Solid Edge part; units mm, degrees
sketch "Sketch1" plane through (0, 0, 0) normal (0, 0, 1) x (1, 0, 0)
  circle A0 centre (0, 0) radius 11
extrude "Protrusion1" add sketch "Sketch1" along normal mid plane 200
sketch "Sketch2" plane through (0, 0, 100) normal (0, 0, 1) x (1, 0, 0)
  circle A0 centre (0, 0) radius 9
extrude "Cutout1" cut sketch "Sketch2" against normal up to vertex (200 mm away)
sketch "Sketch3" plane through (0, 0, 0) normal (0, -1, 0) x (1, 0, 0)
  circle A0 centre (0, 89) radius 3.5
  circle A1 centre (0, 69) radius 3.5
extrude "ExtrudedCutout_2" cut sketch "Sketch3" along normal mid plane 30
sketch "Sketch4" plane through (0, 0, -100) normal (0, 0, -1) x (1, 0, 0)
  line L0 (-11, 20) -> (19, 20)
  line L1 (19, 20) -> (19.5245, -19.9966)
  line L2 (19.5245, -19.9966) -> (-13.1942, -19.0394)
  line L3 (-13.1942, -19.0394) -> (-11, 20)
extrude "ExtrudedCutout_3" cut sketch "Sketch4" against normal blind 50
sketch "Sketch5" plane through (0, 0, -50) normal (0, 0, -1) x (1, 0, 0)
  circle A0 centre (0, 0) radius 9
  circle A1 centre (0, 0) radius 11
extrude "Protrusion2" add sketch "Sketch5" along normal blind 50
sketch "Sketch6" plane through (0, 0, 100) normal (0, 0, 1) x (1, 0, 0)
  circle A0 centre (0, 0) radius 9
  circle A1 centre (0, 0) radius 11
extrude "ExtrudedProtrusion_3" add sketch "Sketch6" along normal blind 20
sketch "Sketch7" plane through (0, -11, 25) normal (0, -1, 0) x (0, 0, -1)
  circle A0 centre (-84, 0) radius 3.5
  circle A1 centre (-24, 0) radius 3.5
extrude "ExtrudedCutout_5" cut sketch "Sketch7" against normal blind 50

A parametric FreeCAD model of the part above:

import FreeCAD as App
import Part
import Sketcher
from FreeCAD import Vector

doc = App.newDocument("Part")
params = doc.addObject("Spreadsheet::Sheet", "Params")
for row, (alias, value) in enumerate([
    ("sketch1_diameter", "22 mm"),
    ("pad1_length", "200 mm"),
    ("sketch2_diameter", "18 mm"),
    ("pocket1_length", "200 mm"),
    ("sketch3_diameter", "7 mm"),
    ("pocket2_length", "30 mm"),
    ("sketch4_width", "30 mm"),
    ("sketch4_length", "40 mm"),
    ("pocket3_length", "50 mm"),
    ("sketch5_diameter", "22 mm"),
    ("sketch5_diameter2", "18 mm"),
    ("pad2_length", "50 mm"),
    ("sketch6_diameter", "22 mm"),
    ("sketch6_diameter2", "18 mm"),
    ("pad3_length", "20 mm"),
    ("sketch7_diameter", "7 mm"),
    ("pocket4_length", "50 mm"),
], start=1):
    params.set(f"A{row}", alias)
    params.set(f"B{row}", "=" + value)
    params.setAlias(f"B{row}", alias)

body = doc.addObject("PartDesign::Body", "Body")

# Sketch on XY plane
sketch1 = body.newObject("Sketcher::SketchObject", "Sketch")
sketch1.AttachmentSupport = (doc.getObject("XY_Plane"), [""])
sketch1.MapMode = "FlatFace"
sketch1.addGeometry(Part.Circle(Vector(0, 0, 0), Vector(0, 0, 1), 11), False)
sketch1.addConstraint(Sketcher.Constraint("Coincident", 0, 3, -1, 1))
sketch1.addConstraint(Sketcher.Constraint("Diameter", 0, 22.0))
sketch1.setExpression("Constraints[1]", "Params.sketch1_diameter")
pad1 = body.newObject("PartDesign::Pad", "Pad")
pad1.Profile = sketch1
pad1.setExpression("Length", "Params.pad1_length")
pad1.Midplane = True

# Sketch on XY plane
sketch2 = body.newObject("Sketcher::SketchObject", "Sketch001")
sketch2.AttachmentSupport = (doc.getObject("XY_Plane"), [""])
sketch2.MapMode = "FlatFace"
sketch2.AttachmentOffset = App.Placement(Vector(0, 0, 100), App.Rotation())
sketch2.addGeometry(Part.Circle(Vector(0, 0, 0), Vector(0, 0, 1), 9), False)
sketch2.addConstraint(Sketcher.Constraint("Coincident", 0, 3, -1, 1))
sketch2.addConstraint(Sketcher.Constraint("Diameter", 0, 18.0))
sketch2.setExpression("Constraints[1]", "Params.sketch2_diameter")
pocket1 = body.newObject("PartDesign::Pocket", "Pocket")
pocket1.Profile = sketch2
pocket1.setExpression("Length", "Params.pocket1_length")

# Sketch on XZ plane
sketch3 = body.newObject("Sketcher::SketchObject", "Sketch002")
sketch3.AttachmentSupport = (doc.getObject("XZ_Plane"), [""])
sketch3.MapMode = "FlatFace"
sketch3.addGeometry(Part.Circle(Vector(0, 89, 0), Vector(0, 0, 1), 3.5), False)
sketch3.addGeometry(Part.Circle(Vector(0, 69, 0), Vector(0, 0, 1), 3.5), False)
sketch3.addConstraint(Sketcher.Constraint("Equal", 0, 1))
sketch3.addConstraint(Sketcher.Constraint("PointOnObject", 0, 3, -2))
sketch3.addConstraint(Sketcher.Constraint("PointOnObject", 1, 3, -2))
sketch3.addConstraint(Sketcher.Constraint("Diameter", 0, 7.0))
sketch3.addConstraint(Sketcher.Constraint("DistanceY", -1, 1, 0, 3, 89.0))
sketch3.addConstraint(Sketcher.Constraint("DistanceY", -1, 1, 1, 3, 69.0))
sketch3.setExpression("Constraints[3]", "Params.sketch3_diameter")
pocket2 = body.newObject("PartDesign::Pocket", "Pocket001")
pocket2.Profile = sketch3
pocket2.setExpression("Length", "Params.pocket2_length")
pocket2.Midplane = True

# Sketch on XY plane
sketch4 = body.newObject("Sketcher::SketchObject", "Sketch003")
sketch4.AttachmentSupport = (doc.getObject("XY_Plane"), [""])
sketch4.MapMode = "FlatFace"
sketch4.AttachmentOffset = App.Placement(Vector(0, 0, -100), App.Rotation())
sketch4.addGeometry(Part.LineSegment(Vector(19, -20, 0), Vector(-11, -20, 0)), False)
sketch4.addGeometry(Part.LineSegment(Vector(-11, -20, 0), Vector(-13, 19, 0)), False)
sketch4.addGeometry(Part.LineSegment(Vector(-13, 19, 0), Vector(20, 20, 0)), False)
sketch4.addGeometry(Part.LineSegment(Vector(20, 20, 0), Vector(19, -20, 0)), False)
sketch4.addConstraint(Sketcher.Constraint("Coincident", 0, 2, 1, 1))
sketch4.addConstraint(Sketcher.Constraint("Coincident", 1, 2, 2, 1))
sketch4.addConstraint(Sketcher.Constraint("Coincident", 2, 2, 3, 1))
sketch4.addConstraint(Sketcher.Constraint("Coincident", 3, 2, 0, 1))
sketch4.addConstraint(Sketcher.Constraint("Horizontal", 0))
sketch4.addConstraint(Sketcher.Constraint("DistanceX", 0, 2, 0, 1, 30.0))
sketch4.addConstraint(Sketcher.Constraint("Distance", 3, 40.0))
sketch4.addConstraint(Sketcher.Constraint("DistanceX", 0, 2, -1, 1, 11.0))
sketch4.addConstraint(Sketcher.Constraint("DistanceY", 0, 2, -1, 1, 20.0))
sketch4.addConstraint(Sketcher.Constraint("Distance", 1, 39.101))
sketch4.addConstraint(Sketcher.Constraint("Distance", 2, 32.7327))
sketch4.addConstraint(Sketcher.Constraint("DistanceX", 1, 2, -1, 1, 13.1942))
sketch4.setExpression("Constraints[5]", "Params.sketch4_width")
sketch4.setExpression("Constraints[6]", "Params.sketch4_length")
pocket3 = body.newObject("PartDesign::Pocket", "Pocket002")
pocket3.Profile = sketch4
pocket3.setExpression("Length", "Params.pocket3_length")
pocket3.Reversed = True

# Sketch on XY plane
sketch5 = body.newObject("Sketcher::SketchObject", "Sketch004")
sketch5.AttachmentSupport = (doc.getObject("XY_Plane"), [""])
sketch5.MapMode = "FlatFace"
sketch5.AttachmentOffset = App.Placement(Vector(0, 0, -50), App.Rotation())
sketch5.addGeometry(Part.Circle(Vector(0, 0, 0), Vector(0, 0, 1), 11), False)
sketch5.addGeometry(Part.Circle(Vector(0, 0, 0), Vector(0, 0, 1), 9), False)
sketch5.addConstraint(Sketcher.Constraint("Coincident", 0, 3, -1, 1))
sketch5.addConstraint(Sketcher.Constraint("Coincident", 1, 3, -1, 1))
sketch5.addConstraint(Sketcher.Constraint("Diameter", 0, 22.0))
sketch5.addConstraint(Sketcher.Constraint("Diameter", 1, 18.0))
sketch5.setExpression("Constraints[2]", "Params.sketch5_diameter")
sketch5.setExpression("Constraints[3]", "Params.sketch5_diameter2")
pad2 = body.newObject("PartDesign::Pad", "Pad001")
pad2.Profile = sketch5
pad2.setExpression("Length", "Params.pad2_length")
pad2.Reversed = True

# Sketch on XY plane
sketch6 = body.newObject("Sketcher::SketchObject", "Sketch005")
sketch6.AttachmentSupport = (doc.getObject("XY_Plane"), [""])
sketch6.MapMode = "FlatFace"
sketch6.AttachmentOffset = App.Placement(Vector(0, 0, 100), App.Rotation())
sketch6.addGeometry(Part.Circle(Vector(0, 0, 0), Vector(0, 0, 1), 11), False)
sketch6.addGeometry(Part.Circle(Vector(0, 0, 0), Vector(0, 0, 1), 9), False)
sketch6.addConstraint(Sketcher.Constraint("Coincident", 0, 3, -1, 1))
sketch6.addConstraint(Sketcher.Constraint("Coincident", 1, 3, -1, 1))
sketch6.addConstraint(Sketcher.Constraint("Diameter", 0, 22.0))
sketch6.addConstraint(Sketcher.Constraint("Diameter", 1, 18.0))
sketch6.setExpression("Constraints[2]", "Params.sketch6_diameter")
sketch6.setExpression("Constraints[3]", "Params.sketch6_diameter2")
pad3 = body.newObject("PartDesign::Pad", "Pad002")
pad3.Profile = sketch6
pad3.setExpression("Length", "Params.pad3_length")

# Sketch on XZ plane
sketch7 = body.newObject("Sketcher::SketchObject", "Sketch006")
sketch7.AttachmentSupport = (doc.getObject("XZ_Plane"), [""])
sketch7.MapMode = "FlatFace"
sketch7.AttachmentOffset = App.Placement(Vector(0, 0, 11), App.Rotation())
sketch7.addGeometry(Part.Circle(Vector(0, 109, 0), Vector(0, 0, 1), 3.5), False)
sketch7.addGeometry(Part.Circle(Vector(0, 49, 0), Vector(0, 0, 1), 3.5), False)
sketch7.addConstraint(Sketcher.Constraint("Equal", 0, 1))
sketch7.addConstraint(Sketcher.Constraint("PointOnObject", 0, 3, -2))
sketch7.addConstraint(Sketcher.Constraint("PointOnObject", 1, 3, -2))
sketch7.addConstraint(Sketcher.Constraint("Diameter", 0, 7.0))
sketch7.addConstraint(Sketcher.Constraint("DistanceY", -1, 1, 0, 3, 109.0))
sketch7.addConstraint(Sketcher.Constraint("DistanceY", -1, 1, 1, 3, 49.0))
sketch7.setExpression("Constraints[3]", "Params.sketch7_diameter")
pocket4 = body.newObject("PartDesign::Pocket", "Pocket003")
pocket4.Profile = sketch7
pocket4.setExpression("Length", "Params.pocket4_length")

doc.recompute()
